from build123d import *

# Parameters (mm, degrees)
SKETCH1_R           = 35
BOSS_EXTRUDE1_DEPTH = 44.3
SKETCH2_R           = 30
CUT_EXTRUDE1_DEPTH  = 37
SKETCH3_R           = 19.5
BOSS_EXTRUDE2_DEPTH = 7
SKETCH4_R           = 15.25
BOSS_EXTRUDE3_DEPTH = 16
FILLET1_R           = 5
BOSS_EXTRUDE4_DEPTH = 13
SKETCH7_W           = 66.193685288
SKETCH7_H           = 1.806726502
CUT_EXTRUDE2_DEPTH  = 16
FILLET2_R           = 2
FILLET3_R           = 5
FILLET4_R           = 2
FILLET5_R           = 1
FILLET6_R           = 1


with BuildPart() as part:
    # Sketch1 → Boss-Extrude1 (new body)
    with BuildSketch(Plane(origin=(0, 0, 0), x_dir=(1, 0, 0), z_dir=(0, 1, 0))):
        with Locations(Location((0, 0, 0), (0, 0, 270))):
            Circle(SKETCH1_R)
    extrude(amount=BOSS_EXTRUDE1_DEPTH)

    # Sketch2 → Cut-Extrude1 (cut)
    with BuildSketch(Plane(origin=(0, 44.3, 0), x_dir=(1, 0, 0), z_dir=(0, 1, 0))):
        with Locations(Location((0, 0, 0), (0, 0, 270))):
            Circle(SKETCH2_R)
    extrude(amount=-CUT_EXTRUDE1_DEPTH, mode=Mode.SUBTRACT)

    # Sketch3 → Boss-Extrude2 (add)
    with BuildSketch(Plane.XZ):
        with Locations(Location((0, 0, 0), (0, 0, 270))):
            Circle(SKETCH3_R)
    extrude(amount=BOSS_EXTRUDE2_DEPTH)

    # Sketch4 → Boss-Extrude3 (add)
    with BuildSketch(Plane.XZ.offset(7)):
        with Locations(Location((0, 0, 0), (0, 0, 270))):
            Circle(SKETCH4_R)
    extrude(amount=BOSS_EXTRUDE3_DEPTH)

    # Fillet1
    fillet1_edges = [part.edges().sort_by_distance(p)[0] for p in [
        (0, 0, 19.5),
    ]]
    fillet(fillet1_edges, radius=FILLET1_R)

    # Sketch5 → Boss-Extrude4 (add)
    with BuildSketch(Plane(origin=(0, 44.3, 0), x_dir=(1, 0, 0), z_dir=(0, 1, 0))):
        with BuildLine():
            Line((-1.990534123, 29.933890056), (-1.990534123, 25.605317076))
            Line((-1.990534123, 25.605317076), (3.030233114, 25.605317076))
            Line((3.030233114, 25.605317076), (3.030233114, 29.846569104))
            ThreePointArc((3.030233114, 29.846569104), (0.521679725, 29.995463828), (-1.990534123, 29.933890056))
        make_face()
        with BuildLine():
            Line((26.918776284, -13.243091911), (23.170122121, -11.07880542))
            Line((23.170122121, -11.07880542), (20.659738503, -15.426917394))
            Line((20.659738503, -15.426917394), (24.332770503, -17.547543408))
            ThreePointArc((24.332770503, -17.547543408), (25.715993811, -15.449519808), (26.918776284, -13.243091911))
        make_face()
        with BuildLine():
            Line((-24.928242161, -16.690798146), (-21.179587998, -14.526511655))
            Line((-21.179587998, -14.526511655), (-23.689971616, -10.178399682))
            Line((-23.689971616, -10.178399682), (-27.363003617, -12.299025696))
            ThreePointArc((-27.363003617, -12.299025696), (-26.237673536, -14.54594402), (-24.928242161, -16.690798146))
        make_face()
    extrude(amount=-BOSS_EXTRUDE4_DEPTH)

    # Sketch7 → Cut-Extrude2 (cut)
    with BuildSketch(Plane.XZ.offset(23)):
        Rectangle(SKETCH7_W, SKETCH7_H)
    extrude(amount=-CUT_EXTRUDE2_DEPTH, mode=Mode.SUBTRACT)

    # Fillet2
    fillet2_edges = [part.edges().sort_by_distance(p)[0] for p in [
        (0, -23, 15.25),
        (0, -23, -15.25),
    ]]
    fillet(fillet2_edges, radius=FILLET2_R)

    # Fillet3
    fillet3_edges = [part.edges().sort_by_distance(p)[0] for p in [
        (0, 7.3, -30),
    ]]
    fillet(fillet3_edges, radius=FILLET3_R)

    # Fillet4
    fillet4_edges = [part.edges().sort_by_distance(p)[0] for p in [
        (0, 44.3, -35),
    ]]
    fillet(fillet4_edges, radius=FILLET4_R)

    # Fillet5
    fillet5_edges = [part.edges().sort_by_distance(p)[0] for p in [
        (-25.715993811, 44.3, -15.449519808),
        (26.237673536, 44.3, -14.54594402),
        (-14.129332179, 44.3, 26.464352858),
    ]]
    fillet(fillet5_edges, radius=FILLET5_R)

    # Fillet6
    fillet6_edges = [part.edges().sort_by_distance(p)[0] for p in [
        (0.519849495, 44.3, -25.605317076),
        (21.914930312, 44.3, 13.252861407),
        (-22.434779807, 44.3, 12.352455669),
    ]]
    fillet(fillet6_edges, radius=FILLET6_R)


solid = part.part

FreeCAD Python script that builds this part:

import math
import FreeCAD as App
import Part
import Sketcher
Q = App.Units.Quantity


def edges_at(feature, points):
    """Names of the edges that pass closest to the given points."""
    edges = feature.Shape.Edges
    near = lambda p: min(range(len(edges)), key=lambda i: edges[i].distToShape(Part.Vertex(*p))[0])
    return sorted({f"Edge{near(p) + 1}" for p in points})

doc = App.newDocument("Part")
params = doc.addObject("Spreadsheet::Sheet", "Params")
for row, (alias, value) in enumerate([
    ("sketch1_diameter", "70 mm"),
    ("pad1_length", "44.3 mm"),
    ("sketch2_diameter", "60 mm"),
    ("pocket1_length", "37 mm"),
    ("sketch3_diameter", "39 mm"),
    ("pad2_length", "7 mm"),
    ("sketch4_diameter", "30.5 mm"),
    ("pad3_length", "16 mm"),
    ("fillet_radius", "5 mm"),
    ("sketch5_radius", "30 mm"),
    ("pad4_length", "13 mm"),
    ("pocket2_length", "16 mm"),
    ("fillet2_radius", "2 mm"),
    ("fillet3_radius", "5 mm"),
    ("fillet4_radius", "2 mm"),
    ("fillet5_radius", "1 mm"),
    ("fillet6_radius", "1 mm"),
], start=1):
    params.set(f"A{row}", alias)
    params.set(f"B{row}", "=" + value)
    params.setAlias(f"B{row}", alias)

body = doc.addObject("PartDesign::Body", "Body")

# Sketch on XZ plane
sketch1 = doc.addObject("Sketcher::SketchObject", "Sketch")
body.addObject(sketch1)
sketch1.AttachmentSupport = (doc.XZ_Plane, [""])
sketch1.MapMode = "FlatFace"
sketch1.addGeometry(Part.Circle(App.Vector(0, 0, 0), App.Vector(0, 0, 1), 35), False)
sketch1.addConstraint([
    Sketcher.Constraint("Coincident", 0, 3, -1, 1),
    Sketcher.Constraint("Diameter", 0, 70.0),
])
sketch1.setExpression("Constraints[1]", "Params.sketch1_diameter")
pad1 = doc.addObject("PartDesign::Pad", "Pad")
body.addObject(pad1)
pad1.Profile = sketch1
pad1.setExpression("Length", "Params.pad1_length")
pad1.Reversed = True

# Sketch on XZ plane
sketch2 = doc.addObject("Sketcher::SketchObject", "Sketch001")
body.addObject(sketch2)
sketch2.AttachmentSupport = (doc.XZ_Plane, [""])
sketch2.MapMode = "FlatFace"
sketch2.AttachmentOffset = App.Placement(App.Vector(0, 0, -44.3), App.Rotation())
sketch2.addGeometry(Part.Circle(App.Vector(0, 0, 0), App.Vector(0, 0, 1), 30), False)
sketch2.addConstraint([
    Sketcher.Constraint("Coincident", 0, 3, -1, 1),
    Sketcher.Constraint("Diameter", 0, 60.0),
])
sketch2.setExpression("Constraints[1]", "Params.sketch2_diameter")
pocket1 = doc.addObject("PartDesign::Pocket", "Pocket")
body.addObject(pocket1)
pocket1.Profile = sketch2
pocket1.setExpression("Length", "Params.pocket1_length")
pocket1.Reversed = True

# Sketch on XZ plane
sketch3 = doc.addObject("Sketcher::SketchObject", "Sketch002")
body.addObject(sketch3)
sketch3.AttachmentSupport = (doc.XZ_Plane, [""])
sketch3.MapMode = "FlatFace"
sketch3.addGeometry(Part.Circle(App.Vector(0, 0, 0), App.Vector(0, 0, 1), 20), False)
sketch3.addConstraint([
    Sketcher.Constraint("Coincident", 0, 3, -1, 1),
    Sketcher.Constraint("Diameter", 0, 39.0),
])
sketch3.setExpression("Constraints[1]", "Params.sketch3_diameter")
pad2 = doc.addObject("PartDesign::Pad", "Pad001")
body.addObject(pad2)
pad2.Profile = sketch3
pad2.setExpression("Length", "Params.pad2_length")

# Sketch on XZ plane
sketch4 = doc.addObject("Sketcher::SketchObject", "Sketch003")
body.addObject(sketch4)
sketch4.AttachmentSupport = (doc.XZ_Plane, [""])
sketch4.MapMode = "FlatFace"
sketch4.AttachmentOffset = App.Placement(App.Vector(0, 0, 7), App.Rotation())
sketch4.addGeometry(Part.Circle(App.Vector(0, 0, 0), App.Vector(0, 0, 1), 15), False)
sketch4.addConstraint([
    Sketcher.Constraint("Coincident", 0, 3, -1, 1),
    Sketcher.Constraint("Diameter", 0, 30.5),
])
sketch4.setExpression("Constraints[1]", "Params.sketch4_diameter")
pad3 = doc.addObject("PartDesign::Pad", "Pad002")
body.addObject(pad3)
pad3.Profile = sketch4
pad3.setExpression("Length", "Params.pad3_length")
doc.recompute()

fillet = doc.addObject("PartDesign::Fillet", "Fillet")
body.addObject(fillet)
fillet.Base = (pad3, edges_at(pad3, [(0, 0, 19.5)]))
fillet.setExpression("Radius", "Params.fillet_radius")

# Sketch on XZ plane
sketch5 = doc.addObject("Sketcher::SketchObject", "Sketch004")
body.addObject(sketch5)
sketch5.AttachmentSupport = (doc.XZ_Plane, [""])
sketch5.MapMode = "FlatFace"
sketch5.AttachmentOffset = App.Placement(App.Vector(0, 0, -44.3), App.Rotation())
sketch5.addGeometry([
    Part.LineSegment(App.Vector(-2, -29.9, 0), App.Vector(-2, -25.6, 0)),  # 0
    Part.LineSegment(App.Vector(-2, -25.6, 0), App.Vector(3, -25.6, 0)),  # 1
    Part.LineSegment(App.Vector(3, -25.6, 0), App.Vector(3, -29.8, 0)),  # 2
    Part.ArcOfCircle(Part.Circle(App.Vector(0, 0, 0), App.Vector(0, 0, 1), 30), math.radians(-93.8), math.radians(-84.2)),  # 3
    Part.LineSegment(App.Vector(26.9, 13.2, 0), App.Vector(23.2, 11.1, 0)),  # 4
    Part.LineSegment(App.Vector(23.2, 11.1, 0), App.Vector(20.7, 15.4, 0)),  # 5
    Part.LineSegment(App.Vector(20.7, 15.4, 0), App.Vector(24.3, 17.5, 0)),  # 6
    Part.ArcOfCircle(Part.Circle(App.Vector(0, 0, 0), App.Vector(0, 0, 1), 30), math.radians(26.2), math.radians(35.8)),  # 7
    Part.LineSegment(App.Vector(-24.9, 16.7, 0), App.Vector(-21.2, 14.5, 0)),  # 8
    Part.LineSegment(App.Vector(-21.2, 14.5, 0), App.Vector(-23.7, 10.2, 0)),  # 9
    Part.LineSegment(App.Vector(-23.7, 10.2, 0), App.Vector(-27.4, 12.3, 0)),  # 10
    Part.ArcOfCircle(Part.Circle(App.Vector(0, 0, 0), App.Vector(0, 0, 1), 30), math.radians(146.2), math.radians(155.8)),  # 11
], False)
sketch5.addConstraint([
    Sketcher.Constraint("Coincident", 0, 2, 1, 1),
    Sketcher.Constraint("Coincident", 1, 2, 2, 1),
    Sketcher.Constraint("Coincident", 2, 2, 3, 2),
    Sketcher.Constraint("Coincident", 3, 1, 0, 1),
    Sketcher.Constraint("Coincident", 4, 2, 5, 1),
    Sketcher.Constraint("Coincident", 5, 2, 6, 1),
    Sketcher.Constraint("Coincident", 6, 2, 7, 2),
    Sketcher.Constraint("Coincident", 7, 1, 4, 1),
    Sketcher.Constraint("Coincident", 8, 2, 9, 1),
    Sketcher.Constraint("Coincident", 9, 2, 10, 1),
    Sketcher.Constraint("Coincident", 10, 2, 11, 2),
    Sketcher.Constraint("Coincident", 11, 1, 8, 1),
    Sketcher.Constraint("Vertical", 0),
    Sketcher.Constraint("Horizontal", 1),
    Sketcher.Constraint("Vertical", 2),
    Sketcher.Constraint("Coincident", 3, 3, -1, 1),
    Sketcher.Constraint("Coincident", 7, 3, -1, 1),
    Sketcher.Constraint("Coincident", 11, 3, -1, 1),
    Sketcher.Constraint("Equal", 3, 7),
    Sketcher.Constraint("Equal", 7, 11),
    Sketcher.Constraint("Perpendicular", 4, 5),
    Sketcher.Constraint("Perpendicular", 5, 6),
    Sketcher.Constraint("Perpendicular", 8, 9),
    Sketcher.Constraint("Perpendicular", 9, 10),
    Sketcher.Constraint("Equal", 4, 8),
    Sketcher.Constraint("Equal", 5, 9),
    Sketcher.Constraint("Equal", 6, 10),
    Sketcher.Constraint("Radius", 3, 30.0),
    Sketcher.Constraint("Angle", 4, Q("-150 deg")),
    Sketcher.Constraint("Angle", 8, Q("-30 deg")),
    Sketcher.Constraint("DistanceY", -1, 1, 9, 2, 10.1784),
    Sketcher.Constraint("DistanceY", -1, 1, 11, 1, 16.690798),
    Sketcher.Constraint("DistanceX", 1, 1, 1, 2, 5.020767),
    Sketcher.Constraint("DistanceY", 0, 1, 0, 2, 4.328573),
    Sketcher.Constraint("DistanceY", 2, 2, 2, 1, 4.241252),
    Sketcher.Constraint("DistanceX", -1, 1, 5, 2, 20.659739),
])
sketch5.setExpression("Constraints[27]", "Params.sketch5_radius")
pad4 = doc.addObject("PartDesign::Pad", "Pad003")
body.addObject(pad4)
pad4.Profile = sketch5
pad4.setExpression("Length", "Params.pad4_length")

# Sketch on XZ plane
sketch6 = doc.addObject("Sketcher::SketchObject", "Sketch005")
body.addObject(sketch6)
sketch6.AttachmentSupport = (doc.XZ_Plane, [""])
sketch6.MapMode = "FlatFace"
sketch6.AttachmentOffset = App.Placement(App.Vector(0, 0, 23), App.Rotation())
sketch6.addGeometry([
    Part.LineSegment(App.Vector(-33.1, 0.9, 0), App.Vector(-33.1, -0.9, 0)),
    Part.LineSegment(App.Vector(-33.1, -0.9, 0), App.Vector(33.1, -0.9, 0)),
    Part.LineSegment(App.Vector(33.1, -0.9, 0), App.Vector(33.1, 0.9, 0)),
    Part.LineSegment(App.Vector(33.1, 0.9, 0), App.Vector(-33.1, 0.9, 0)),
], False)
sketch6.addConstraint([
    Sketcher.Constraint("Coincident", 0, 2, 1, 1),
    Sketcher.Constraint("Coincident", 1, 2, 2, 1),
    Sketcher.Constraint("Coincident", 2, 2, 3, 1),
    Sketcher.Constraint("Coincident", 3, 2, 0, 1),
    Sketcher.Constraint("Vertical", 0),
    Sketcher.Constraint("Horizontal", 1),
    Sketcher.Constraint("Vertical", 2),
    Sketcher.Constraint("Horizontal", 3),
    Sketcher.Constraint("Symmetric", 0, 2, 2, 2, -1, 1),
    Sketcher.Constraint("DistanceX", 1, 1, 1, 2, 66.193685),
    Sketcher.Constraint("DistanceY", 0, 2, 0, 1, 1.806727),
])
pocket2 = doc.addObject("PartDesign::Pocket", "Pocket001")
body.addObject(pocket2)
pocket2.Profile = sketch6
pocket2.setExpression("Length", "Params.pocket2_length")
doc.recompute()

fillet2 = doc.addObject("PartDesign::Fillet", "Fillet001")
body.addObject(fillet2)
fillet2.Base = (pocket2, edges_at(pocket2, [(0, -23, 15.25), (0, -23, -15.25)]))
fillet2.setExpression("Radius", "Params.fillet2_radius")
doc.recompute()

fillet3 = doc.addObject("PartDesign::Fillet", "Fillet002")
body.addObject(fillet3)
fillet3.Base = (fillet2, edges_at(fillet2, [(0, 7.3, -30)]))
fillet3.setExpression("Radius", "Params.fillet3_radius")
doc.recompute()

fillet4 = doc.addObject("PartDesign::Fillet", "Fillet003")
body.addObject(fillet4)
fillet4.Base = (fillet3, edges_at(fillet3, [(0, 44.3, -35)]))
fillet4.setExpression("Radius", "Params.fillet4_radius")
doc.recompute()

fillet5 = doc.addObject("PartDesign::Fillet", "Fillet004")
body.addObject(fillet5)
fillet5.Base = (fillet4, edges_at(fillet4, [(-25.716, 44.3, -15.45), (26.238, 44.3, -14.546), (-14.129, 44.3, 26.464)]))
fillet5.setExpression("Radius", "Params.fillet5_radius")
doc.recompute()

fillet6 = doc.addObject("PartDesign::Fillet", "Fillet005")
body.addObject(fillet6)
fillet6.Base = (fillet5, edges_at(fillet5, [(0.52, 44.3, -25.605), (21.915, 44.3, 13.253), (-22.435, 44.3, 12.352)]))
fillet6.setExpression("Radius", "Params.fillet6_radius")

doc.recompute()
